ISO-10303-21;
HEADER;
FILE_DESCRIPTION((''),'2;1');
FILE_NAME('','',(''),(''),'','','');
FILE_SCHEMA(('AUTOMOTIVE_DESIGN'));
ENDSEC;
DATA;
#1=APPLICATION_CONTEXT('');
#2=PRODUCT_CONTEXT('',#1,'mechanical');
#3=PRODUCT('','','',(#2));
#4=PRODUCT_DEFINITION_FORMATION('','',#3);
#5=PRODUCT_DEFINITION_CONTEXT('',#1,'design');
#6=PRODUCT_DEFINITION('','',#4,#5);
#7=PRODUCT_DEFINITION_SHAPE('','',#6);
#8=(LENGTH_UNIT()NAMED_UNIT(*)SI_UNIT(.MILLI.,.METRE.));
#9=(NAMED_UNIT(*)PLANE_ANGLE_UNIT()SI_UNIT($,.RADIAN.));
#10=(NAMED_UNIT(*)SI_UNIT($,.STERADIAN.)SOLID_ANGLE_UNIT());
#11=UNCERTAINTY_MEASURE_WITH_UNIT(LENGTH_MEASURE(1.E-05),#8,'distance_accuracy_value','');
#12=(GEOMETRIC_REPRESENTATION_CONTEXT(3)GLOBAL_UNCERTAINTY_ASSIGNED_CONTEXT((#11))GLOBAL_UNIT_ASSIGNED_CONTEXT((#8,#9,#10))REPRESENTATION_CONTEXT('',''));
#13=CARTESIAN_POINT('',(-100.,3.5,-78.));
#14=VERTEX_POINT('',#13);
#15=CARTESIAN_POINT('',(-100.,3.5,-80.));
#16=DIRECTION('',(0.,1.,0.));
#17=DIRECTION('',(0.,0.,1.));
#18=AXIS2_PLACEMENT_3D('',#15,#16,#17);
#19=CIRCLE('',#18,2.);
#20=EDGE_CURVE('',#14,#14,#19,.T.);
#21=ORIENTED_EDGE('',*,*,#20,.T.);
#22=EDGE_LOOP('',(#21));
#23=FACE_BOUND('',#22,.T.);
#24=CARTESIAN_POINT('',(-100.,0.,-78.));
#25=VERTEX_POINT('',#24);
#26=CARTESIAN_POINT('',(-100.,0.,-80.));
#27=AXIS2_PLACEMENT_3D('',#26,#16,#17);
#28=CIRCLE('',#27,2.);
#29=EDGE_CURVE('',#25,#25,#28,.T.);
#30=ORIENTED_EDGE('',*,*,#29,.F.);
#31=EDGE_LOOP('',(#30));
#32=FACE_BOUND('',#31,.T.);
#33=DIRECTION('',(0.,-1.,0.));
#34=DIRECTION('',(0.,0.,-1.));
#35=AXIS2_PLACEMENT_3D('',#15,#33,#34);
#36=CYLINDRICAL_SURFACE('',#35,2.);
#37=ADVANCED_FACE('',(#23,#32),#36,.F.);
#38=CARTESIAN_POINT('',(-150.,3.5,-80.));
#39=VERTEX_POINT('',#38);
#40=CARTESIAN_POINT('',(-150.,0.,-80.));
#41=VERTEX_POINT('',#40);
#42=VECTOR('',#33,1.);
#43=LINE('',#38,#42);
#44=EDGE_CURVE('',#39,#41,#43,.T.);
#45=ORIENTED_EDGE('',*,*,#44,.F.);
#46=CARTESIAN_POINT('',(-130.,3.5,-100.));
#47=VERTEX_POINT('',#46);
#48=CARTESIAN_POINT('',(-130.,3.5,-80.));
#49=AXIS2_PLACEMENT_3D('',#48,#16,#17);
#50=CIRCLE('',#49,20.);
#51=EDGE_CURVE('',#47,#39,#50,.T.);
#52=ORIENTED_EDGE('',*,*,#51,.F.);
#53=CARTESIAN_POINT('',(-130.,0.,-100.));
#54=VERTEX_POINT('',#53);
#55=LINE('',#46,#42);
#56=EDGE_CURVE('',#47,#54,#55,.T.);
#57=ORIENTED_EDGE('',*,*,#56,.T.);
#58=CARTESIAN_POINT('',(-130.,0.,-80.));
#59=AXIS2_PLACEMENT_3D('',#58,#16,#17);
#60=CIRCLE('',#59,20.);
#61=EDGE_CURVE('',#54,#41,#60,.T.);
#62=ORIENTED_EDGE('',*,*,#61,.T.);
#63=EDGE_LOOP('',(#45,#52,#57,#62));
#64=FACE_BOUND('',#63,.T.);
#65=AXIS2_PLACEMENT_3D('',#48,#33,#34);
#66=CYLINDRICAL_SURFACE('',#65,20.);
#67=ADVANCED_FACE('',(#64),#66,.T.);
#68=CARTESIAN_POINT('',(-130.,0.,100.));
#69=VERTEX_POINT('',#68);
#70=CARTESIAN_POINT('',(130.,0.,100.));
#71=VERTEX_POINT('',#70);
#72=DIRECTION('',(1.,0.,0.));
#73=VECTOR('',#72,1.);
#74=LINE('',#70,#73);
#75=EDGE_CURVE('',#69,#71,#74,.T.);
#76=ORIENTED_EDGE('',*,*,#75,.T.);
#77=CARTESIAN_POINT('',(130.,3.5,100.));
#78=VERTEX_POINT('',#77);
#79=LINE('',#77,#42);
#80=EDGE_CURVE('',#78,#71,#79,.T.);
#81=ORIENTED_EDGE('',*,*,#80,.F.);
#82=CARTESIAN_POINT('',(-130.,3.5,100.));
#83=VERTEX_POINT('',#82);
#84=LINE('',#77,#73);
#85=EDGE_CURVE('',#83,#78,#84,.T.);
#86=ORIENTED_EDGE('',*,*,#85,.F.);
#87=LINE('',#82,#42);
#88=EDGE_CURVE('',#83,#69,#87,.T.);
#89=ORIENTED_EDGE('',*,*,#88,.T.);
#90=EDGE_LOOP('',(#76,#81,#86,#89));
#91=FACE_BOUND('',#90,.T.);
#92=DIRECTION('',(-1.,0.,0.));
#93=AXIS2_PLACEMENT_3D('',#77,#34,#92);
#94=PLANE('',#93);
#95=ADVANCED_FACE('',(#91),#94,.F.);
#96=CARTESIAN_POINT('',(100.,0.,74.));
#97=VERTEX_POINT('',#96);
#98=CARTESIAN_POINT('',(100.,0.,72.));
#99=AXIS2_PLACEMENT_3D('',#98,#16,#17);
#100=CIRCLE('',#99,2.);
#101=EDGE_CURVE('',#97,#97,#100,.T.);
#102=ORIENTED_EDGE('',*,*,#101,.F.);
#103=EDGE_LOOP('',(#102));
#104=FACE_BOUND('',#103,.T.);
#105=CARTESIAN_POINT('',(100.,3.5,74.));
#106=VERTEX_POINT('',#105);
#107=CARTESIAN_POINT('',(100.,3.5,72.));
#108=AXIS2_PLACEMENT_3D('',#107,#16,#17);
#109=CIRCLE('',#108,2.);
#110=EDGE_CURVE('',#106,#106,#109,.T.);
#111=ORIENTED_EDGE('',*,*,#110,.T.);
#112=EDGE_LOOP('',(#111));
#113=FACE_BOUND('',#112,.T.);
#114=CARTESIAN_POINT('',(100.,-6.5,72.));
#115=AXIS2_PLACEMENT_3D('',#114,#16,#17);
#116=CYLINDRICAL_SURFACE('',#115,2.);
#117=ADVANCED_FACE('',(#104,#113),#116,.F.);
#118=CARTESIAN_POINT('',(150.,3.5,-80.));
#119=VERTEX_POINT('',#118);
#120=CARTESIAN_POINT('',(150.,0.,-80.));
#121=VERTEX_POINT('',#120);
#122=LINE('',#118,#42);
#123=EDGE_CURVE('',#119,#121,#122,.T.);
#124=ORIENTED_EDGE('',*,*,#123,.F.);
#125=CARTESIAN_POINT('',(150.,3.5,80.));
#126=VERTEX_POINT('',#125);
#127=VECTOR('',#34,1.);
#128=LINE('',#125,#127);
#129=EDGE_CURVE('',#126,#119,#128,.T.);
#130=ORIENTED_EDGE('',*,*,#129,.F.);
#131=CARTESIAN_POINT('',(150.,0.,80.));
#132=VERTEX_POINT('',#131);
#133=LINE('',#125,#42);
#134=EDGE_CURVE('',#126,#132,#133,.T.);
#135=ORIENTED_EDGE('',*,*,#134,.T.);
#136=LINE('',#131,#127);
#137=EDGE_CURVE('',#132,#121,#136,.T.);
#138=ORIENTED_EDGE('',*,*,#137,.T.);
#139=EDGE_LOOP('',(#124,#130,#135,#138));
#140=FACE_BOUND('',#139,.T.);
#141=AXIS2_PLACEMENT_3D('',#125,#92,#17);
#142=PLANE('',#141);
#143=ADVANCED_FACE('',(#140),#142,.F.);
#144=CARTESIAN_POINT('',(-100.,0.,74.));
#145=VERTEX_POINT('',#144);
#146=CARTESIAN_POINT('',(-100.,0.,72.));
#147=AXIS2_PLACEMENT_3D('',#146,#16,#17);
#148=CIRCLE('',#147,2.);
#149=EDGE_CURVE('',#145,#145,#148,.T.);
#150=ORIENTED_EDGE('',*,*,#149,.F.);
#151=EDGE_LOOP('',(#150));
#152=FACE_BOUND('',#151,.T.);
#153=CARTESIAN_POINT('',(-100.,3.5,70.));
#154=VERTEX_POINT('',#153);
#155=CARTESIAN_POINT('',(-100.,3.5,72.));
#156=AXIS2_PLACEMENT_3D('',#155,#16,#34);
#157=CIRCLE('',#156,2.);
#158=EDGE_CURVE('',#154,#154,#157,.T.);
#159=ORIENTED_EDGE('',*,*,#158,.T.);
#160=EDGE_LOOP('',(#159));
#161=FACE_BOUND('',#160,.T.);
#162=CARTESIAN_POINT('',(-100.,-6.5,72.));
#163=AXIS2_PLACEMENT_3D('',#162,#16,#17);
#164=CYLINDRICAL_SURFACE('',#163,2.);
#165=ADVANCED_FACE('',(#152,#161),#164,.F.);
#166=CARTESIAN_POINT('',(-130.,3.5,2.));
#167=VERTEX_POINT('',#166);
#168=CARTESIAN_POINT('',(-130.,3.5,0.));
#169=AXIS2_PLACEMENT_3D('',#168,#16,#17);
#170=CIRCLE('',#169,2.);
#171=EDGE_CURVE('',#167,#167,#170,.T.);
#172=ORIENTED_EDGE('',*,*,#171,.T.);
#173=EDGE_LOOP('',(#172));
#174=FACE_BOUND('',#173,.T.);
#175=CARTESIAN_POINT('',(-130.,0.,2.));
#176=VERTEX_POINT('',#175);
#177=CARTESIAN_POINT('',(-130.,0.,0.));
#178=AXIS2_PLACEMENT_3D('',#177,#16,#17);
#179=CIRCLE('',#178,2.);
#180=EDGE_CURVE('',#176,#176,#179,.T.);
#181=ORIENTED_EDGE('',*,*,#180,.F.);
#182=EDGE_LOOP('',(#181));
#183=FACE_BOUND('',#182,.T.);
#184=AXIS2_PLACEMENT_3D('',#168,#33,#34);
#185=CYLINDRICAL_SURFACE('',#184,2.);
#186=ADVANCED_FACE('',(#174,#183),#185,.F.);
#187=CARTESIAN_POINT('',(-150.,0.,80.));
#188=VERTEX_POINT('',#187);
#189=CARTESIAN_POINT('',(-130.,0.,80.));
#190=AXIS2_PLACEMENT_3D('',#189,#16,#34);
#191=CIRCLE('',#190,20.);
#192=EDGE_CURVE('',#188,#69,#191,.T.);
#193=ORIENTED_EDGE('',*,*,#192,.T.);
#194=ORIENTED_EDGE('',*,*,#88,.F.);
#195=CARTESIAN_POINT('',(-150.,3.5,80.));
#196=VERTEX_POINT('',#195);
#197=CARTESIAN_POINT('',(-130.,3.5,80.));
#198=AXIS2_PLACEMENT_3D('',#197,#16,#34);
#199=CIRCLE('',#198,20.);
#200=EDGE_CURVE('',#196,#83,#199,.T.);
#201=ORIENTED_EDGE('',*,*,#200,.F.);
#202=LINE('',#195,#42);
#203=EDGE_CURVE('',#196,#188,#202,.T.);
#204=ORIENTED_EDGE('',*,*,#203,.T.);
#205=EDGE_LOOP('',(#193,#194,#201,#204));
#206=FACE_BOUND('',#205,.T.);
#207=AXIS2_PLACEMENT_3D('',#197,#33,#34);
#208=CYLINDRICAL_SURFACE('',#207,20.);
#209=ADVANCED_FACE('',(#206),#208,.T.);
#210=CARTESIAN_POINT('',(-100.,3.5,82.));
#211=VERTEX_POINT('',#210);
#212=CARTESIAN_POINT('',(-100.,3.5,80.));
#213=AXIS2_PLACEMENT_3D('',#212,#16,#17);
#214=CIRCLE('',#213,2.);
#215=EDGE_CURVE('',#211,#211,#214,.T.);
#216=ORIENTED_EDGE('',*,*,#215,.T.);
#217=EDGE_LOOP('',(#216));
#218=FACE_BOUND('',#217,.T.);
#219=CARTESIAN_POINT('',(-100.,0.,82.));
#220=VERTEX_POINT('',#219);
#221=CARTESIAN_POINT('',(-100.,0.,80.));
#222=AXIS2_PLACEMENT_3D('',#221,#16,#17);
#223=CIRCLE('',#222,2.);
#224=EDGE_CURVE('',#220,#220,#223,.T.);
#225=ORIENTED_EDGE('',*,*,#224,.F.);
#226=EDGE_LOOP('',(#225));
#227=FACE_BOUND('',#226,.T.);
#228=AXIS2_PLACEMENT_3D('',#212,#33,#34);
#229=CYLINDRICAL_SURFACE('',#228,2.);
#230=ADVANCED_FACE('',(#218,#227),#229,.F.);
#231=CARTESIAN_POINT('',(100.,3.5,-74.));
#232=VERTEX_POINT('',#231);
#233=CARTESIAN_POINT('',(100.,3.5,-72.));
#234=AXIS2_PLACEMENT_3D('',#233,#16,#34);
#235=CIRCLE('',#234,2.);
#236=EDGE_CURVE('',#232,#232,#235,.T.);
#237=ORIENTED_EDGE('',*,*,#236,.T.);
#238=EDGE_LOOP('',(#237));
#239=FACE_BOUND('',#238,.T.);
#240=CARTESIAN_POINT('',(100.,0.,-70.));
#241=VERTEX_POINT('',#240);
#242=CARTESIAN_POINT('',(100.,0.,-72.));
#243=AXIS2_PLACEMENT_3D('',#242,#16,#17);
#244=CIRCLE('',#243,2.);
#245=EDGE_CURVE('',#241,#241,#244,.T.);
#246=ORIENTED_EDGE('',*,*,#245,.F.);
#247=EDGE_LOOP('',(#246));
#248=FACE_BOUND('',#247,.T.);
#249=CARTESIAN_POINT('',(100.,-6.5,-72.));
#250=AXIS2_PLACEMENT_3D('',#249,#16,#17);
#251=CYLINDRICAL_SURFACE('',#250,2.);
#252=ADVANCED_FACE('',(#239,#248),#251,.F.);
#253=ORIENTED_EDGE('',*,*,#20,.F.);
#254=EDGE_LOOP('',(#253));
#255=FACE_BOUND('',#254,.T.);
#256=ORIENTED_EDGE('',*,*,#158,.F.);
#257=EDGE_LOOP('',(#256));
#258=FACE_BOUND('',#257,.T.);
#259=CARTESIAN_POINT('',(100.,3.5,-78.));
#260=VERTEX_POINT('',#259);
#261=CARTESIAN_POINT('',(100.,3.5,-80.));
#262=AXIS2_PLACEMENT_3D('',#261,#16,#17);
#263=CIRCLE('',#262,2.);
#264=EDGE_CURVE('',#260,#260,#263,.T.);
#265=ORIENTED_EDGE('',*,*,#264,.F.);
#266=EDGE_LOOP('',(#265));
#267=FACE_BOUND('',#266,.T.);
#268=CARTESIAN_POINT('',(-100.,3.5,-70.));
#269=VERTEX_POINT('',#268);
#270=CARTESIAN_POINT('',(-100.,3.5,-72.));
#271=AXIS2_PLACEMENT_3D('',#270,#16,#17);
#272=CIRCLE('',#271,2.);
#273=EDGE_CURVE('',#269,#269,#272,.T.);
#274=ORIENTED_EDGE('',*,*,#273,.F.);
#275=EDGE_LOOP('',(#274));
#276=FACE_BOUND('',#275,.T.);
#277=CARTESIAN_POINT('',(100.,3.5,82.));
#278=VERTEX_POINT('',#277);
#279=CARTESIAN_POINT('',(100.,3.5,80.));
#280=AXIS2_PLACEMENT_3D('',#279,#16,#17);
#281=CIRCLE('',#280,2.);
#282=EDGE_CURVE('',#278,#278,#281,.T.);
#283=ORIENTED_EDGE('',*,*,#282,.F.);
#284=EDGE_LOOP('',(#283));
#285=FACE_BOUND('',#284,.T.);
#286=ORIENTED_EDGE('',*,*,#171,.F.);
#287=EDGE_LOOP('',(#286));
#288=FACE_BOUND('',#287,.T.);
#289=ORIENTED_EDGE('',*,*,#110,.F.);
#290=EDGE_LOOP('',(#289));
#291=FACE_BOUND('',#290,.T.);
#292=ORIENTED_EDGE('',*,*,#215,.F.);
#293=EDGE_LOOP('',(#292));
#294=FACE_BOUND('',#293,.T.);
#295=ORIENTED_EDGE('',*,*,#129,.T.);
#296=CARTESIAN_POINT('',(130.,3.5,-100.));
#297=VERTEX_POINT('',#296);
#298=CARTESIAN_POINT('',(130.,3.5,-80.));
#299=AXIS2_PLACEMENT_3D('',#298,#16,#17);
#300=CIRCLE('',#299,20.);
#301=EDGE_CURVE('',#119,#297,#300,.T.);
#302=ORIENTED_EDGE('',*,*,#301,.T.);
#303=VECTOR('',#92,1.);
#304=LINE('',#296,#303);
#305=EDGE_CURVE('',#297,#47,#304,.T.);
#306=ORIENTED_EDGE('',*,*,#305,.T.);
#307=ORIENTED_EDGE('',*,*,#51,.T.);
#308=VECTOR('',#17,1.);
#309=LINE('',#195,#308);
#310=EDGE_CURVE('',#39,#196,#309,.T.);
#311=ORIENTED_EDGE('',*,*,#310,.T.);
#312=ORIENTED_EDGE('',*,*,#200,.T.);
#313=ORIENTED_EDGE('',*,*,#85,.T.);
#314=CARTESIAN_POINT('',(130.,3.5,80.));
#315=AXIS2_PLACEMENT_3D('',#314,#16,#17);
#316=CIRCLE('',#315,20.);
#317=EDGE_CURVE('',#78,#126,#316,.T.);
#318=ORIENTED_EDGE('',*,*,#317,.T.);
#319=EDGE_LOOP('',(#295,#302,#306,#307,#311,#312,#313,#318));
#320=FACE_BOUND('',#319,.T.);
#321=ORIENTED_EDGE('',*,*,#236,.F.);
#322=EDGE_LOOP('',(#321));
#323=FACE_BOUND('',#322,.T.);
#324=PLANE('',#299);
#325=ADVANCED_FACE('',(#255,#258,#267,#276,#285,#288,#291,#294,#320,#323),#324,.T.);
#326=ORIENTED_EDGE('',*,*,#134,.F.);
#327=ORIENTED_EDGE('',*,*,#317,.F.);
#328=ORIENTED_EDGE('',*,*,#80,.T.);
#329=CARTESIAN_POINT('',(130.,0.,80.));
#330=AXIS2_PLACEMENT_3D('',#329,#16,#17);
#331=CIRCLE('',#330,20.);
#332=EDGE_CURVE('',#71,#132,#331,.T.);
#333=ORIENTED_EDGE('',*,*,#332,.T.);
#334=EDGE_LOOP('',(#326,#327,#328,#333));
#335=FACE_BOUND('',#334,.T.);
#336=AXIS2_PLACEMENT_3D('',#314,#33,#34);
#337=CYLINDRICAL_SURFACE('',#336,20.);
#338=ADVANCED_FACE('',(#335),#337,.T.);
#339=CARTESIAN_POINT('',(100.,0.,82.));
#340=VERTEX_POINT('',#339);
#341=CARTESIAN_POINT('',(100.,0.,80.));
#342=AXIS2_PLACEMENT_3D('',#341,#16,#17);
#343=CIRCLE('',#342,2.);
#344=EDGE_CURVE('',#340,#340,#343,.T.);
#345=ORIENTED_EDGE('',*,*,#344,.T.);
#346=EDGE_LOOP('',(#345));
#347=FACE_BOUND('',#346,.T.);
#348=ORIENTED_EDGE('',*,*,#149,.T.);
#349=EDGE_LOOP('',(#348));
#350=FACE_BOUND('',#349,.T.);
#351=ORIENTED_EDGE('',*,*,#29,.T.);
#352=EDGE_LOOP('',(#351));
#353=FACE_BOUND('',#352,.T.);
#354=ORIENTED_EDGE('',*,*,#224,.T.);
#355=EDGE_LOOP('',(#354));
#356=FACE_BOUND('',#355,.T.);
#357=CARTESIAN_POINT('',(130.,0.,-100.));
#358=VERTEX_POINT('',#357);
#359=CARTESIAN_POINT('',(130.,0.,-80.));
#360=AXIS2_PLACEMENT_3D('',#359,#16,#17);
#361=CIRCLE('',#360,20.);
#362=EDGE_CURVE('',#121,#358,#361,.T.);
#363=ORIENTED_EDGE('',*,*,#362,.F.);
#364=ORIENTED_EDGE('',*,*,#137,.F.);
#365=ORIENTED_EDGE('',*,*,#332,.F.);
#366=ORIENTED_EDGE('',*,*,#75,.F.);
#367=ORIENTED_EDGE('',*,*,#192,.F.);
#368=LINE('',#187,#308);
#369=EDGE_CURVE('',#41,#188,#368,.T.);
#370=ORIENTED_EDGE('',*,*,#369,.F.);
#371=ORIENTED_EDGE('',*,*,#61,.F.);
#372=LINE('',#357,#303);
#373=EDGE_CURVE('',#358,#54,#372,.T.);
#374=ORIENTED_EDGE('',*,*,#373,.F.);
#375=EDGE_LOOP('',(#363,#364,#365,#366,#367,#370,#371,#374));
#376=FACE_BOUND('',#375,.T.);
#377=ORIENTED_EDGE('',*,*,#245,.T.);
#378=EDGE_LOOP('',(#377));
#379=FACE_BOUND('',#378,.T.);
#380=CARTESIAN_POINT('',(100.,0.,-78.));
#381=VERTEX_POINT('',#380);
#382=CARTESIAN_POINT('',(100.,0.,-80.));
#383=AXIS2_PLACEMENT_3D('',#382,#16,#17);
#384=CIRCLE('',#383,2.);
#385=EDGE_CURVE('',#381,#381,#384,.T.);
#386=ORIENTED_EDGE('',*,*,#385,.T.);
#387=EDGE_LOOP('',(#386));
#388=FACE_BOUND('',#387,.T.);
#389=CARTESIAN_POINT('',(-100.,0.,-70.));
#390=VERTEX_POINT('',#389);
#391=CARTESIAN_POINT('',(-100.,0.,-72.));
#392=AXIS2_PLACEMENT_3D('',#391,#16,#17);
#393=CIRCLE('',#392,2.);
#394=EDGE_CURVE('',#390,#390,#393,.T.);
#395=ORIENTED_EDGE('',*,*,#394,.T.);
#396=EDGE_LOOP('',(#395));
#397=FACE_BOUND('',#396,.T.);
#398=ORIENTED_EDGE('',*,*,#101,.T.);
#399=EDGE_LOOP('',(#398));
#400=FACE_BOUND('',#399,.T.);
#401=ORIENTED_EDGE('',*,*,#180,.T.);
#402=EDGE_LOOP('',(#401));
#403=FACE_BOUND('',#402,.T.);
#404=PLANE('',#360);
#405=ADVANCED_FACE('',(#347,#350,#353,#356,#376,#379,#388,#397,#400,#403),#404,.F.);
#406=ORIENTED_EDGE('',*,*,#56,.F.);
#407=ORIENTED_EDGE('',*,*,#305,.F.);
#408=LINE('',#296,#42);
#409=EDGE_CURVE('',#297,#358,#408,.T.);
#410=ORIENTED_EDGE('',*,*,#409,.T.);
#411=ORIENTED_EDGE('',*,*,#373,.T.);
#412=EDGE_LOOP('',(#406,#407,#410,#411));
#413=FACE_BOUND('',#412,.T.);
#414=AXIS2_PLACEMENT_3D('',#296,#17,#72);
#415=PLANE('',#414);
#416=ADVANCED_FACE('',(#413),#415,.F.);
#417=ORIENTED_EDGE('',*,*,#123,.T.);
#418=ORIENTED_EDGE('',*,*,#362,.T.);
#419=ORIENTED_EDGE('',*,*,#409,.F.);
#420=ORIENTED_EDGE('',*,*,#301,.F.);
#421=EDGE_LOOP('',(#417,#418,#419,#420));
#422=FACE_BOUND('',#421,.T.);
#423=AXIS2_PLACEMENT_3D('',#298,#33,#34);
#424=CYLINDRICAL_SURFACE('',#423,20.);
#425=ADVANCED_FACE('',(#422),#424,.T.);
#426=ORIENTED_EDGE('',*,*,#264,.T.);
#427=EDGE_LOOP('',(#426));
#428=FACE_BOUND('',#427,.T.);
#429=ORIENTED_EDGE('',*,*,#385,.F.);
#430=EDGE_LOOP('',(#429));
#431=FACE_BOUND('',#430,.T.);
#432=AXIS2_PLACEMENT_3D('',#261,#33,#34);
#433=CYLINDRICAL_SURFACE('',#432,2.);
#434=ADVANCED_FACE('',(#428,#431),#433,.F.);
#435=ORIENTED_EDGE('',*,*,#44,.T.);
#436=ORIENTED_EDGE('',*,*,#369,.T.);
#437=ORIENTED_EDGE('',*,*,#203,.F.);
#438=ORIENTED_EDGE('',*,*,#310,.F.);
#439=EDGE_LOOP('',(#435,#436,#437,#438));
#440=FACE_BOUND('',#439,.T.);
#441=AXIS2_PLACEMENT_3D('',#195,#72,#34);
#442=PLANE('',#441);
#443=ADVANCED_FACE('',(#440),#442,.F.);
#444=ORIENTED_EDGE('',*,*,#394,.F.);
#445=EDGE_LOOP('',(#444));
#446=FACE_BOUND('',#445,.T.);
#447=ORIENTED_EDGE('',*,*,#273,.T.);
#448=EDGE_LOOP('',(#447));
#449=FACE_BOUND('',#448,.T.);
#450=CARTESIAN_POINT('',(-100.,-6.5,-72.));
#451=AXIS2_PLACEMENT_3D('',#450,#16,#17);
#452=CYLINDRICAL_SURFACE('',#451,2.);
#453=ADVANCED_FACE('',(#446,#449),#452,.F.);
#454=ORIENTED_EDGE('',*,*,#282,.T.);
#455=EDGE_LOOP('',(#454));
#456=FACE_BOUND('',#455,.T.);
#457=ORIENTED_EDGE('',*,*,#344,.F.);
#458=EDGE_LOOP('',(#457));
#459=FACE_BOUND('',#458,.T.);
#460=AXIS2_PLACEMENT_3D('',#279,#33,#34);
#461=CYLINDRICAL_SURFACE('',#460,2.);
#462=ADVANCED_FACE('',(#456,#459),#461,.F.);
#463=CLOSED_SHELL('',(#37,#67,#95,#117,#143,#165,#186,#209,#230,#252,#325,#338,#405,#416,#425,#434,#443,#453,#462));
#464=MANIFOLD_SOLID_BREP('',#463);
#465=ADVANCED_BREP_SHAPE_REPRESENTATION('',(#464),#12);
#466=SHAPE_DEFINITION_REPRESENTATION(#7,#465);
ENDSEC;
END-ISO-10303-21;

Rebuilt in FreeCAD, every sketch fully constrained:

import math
import FreeCAD as App
import Part
import Sketcher
from FreeCAD import Vector
Q = App.Units.Quantity

doc = App.newDocument("Part")
body = doc.addObject("PartDesign::Body", "Body")

# Sketch on XZ plane
sketch1 = body.newObject("Sketcher::SketchObject", "Sketch")
sketch1.AttachmentSupport = (doc.getObject("XZ_Plane"), [""])
sketch1.MapMode = "FlatFace"
sketch1.addGeometry([
    Part.LineSegment(Vector(-130, 100, 0), Vector(130, 100, 0)),  # 0
    Part.ArcOfCircle(Part.Circle(Vector(130, 80, 0), Vector(0, 0, 1), 20), math.radians(0), math.radians(90)),  # 1
    Part.LineSegment(Vector(150, 80, 0), Vector(150, -80, 0)),  # 2
    Part.ArcOfCircle(Part.Circle(Vector(130, -80, 0), Vector(0, 0, 1), 20), math.radians(-90), math.radians(0)),  # 3
    Part.LineSegment(Vector(130, -100, 0), Vector(-130, -100, 0)),  # 4
    Part.ArcOfCircle(Part.Circle(Vector(-130, -80, 0), Vector(0, 0, 1), 20), math.radians(180), math.radians(270)),  # 5
    Part.LineSegment(Vector(-150, -80, 0), Vector(-150, 80, 0)),  # 6
    Part.ArcOfCircle(Part.Circle(Vector(-130, 80, 0), Vector(0, 0, 1), 20), math.radians(90), math.radians(180)),  # 7
    Part.Circle(Vector(100, 80, 0), Vector(0, 0, 1), 2),  # 8
    Part.Circle(Vector(-100, 80, 0), Vector(0, 0, 1), 2),  # 9
    Part.Circle(Vector(100, -80, 0), Vector(0, 0, 1), 2),  # 10
    Part.Circle(Vector(-130, 0, 0), Vector(0, 0, 1), 2),  # 11
    Part.Circle(Vector(-100, -80, 0), Vector(0, 0, 1), 2),  # 12
], False)
sketch1.addConstraint([
    Sketcher.Constraint("Tangent", 0, 2, 1, 2),
    Sketcher.Constraint("Tangent", 1, 1, 2, 1),
    Sketcher.Constraint("Tangent", 2, 2, 3, 2),
    Sketcher.Constraint("Tangent", 3, 1, 4, 1),
    Sketcher.Constraint("Tangent", 4, 2, 5, 2),
    Sketcher.Constraint("Tangent", 5, 1, 6, 1),
    Sketcher.Constraint("Tangent", 6, 2, 7, 2),
    Sketcher.Constraint("Tangent", 7, 1, 0, 1),
    Sketcher.Constraint("Horizontal", 0),
    Sketcher.Constraint("Vertical", 2),
    Sketcher.Constraint("Horizontal", 4),
    Sketcher.Constraint("Vertical", 6),
    Sketcher.Constraint("Equal", 1, 3),
    Sketcher.Constraint("Equal", 3, 5),
    Sketcher.Constraint("Equal", 5, 7),
    Sketcher.Constraint("Equal", 8, 9),
    Sketcher.Constraint("Equal", 9, 10),
    Sketcher.Constraint("Equal", 10, 11),
    Sketcher.Constraint("Equal", 11, 12),
    Sketcher.Constraint("Symmetric", 1, 3, 5, 3, -1, 1),
    Sketcher.Constraint("Symmetric", 9, 3, 10, 3, -1, 1),
    Sketcher.Constraint("Symmetric", 8, 3, 12, 3, -1, 1),
    Sketcher.Constraint("Symmetric", 8, 3, 9, 3, -2),
    Sketcher.Constraint("PointOnObject", 11, 3, -1),
    Sketcher.Constraint("Horizontal", 7, 3, 8, 3),
    Sketcher.Constraint("Vertical", 7, 3, 11, 3),
    Sketcher.Constraint("Diameter", 8, Q("4 mm")),
    Sketcher.Constraint("Radius", 1, Q("20 mm")),
    Sketcher.Constraint("DistanceX", 0, 1, 0, 2, Q("260 mm")),
    Sketcher.Constraint("DistanceY", 2, 2, 2, 1, Q("160 mm")),
    Sketcher.Constraint("DistanceX", -1, 1, 8, 3, Q("100 mm")),
])
pad1 = body.newObject("PartDesign::Pad", "Pad")
pad1.Profile = sketch1
pad1.Length = 3.5
pad1.Reversed = True

# Sketch on XZ plane
sketch2 = body.newObject("Sketcher::SketchObject", "Sketch001")
sketch2.AttachmentSupport = (doc.getObject("XZ_Plane"), [""])
sketch2.MapMode = "FlatFace"
sketch2.AttachmentOffset = App.Placement(Vector(0, 0, -3.5), App.Rotation())
sketch2.addGeometry([
    Part.Circle(Vector(-100, -72, 0), Vector(0, 0, 1), 2),
    Part.Circle(Vector(-100, 72, 0), Vector(0, 0, 1), 2),
    Part.Circle(Vector(100, 72, 0), Vector(0, 0, 1), 2),
    Part.Circle(Vector(100, -72, 0), Vector(0, 0, 1), 2),
], False)
sketch2.addConstraint([
    Sketcher.Constraint("Equal", 0, 1),
    Sketcher.Constraint("Equal", 1, 2),
    Sketcher.Constraint("Equal", 2, 3),
    Sketcher.Constraint("Symmetric", 0, 3, 2, 3, -1, 1),
    Sketcher.Constraint("Symmetric", 1, 3, 3, 3, -1, 1),
    Sketcher.Constraint("Symmetric", 1, 3, 2, 3, -2),
    Sketcher.Constraint("Diameter", 0, Q("4 mm")),
    Sketcher.Constraint("DistanceX", 0, 3, -1, 1, Q("100 mm")),
    Sketcher.Constraint("DistanceY", 0, 3, -1, 1, Q("72 mm")),
])
pocket1 = body.newObject("PartDesign::Pocket", "Pocket")
pocket1.Profile = sketch2
pocket1.Length = 10
pocket1.Reversed = True

doc.recompute()
